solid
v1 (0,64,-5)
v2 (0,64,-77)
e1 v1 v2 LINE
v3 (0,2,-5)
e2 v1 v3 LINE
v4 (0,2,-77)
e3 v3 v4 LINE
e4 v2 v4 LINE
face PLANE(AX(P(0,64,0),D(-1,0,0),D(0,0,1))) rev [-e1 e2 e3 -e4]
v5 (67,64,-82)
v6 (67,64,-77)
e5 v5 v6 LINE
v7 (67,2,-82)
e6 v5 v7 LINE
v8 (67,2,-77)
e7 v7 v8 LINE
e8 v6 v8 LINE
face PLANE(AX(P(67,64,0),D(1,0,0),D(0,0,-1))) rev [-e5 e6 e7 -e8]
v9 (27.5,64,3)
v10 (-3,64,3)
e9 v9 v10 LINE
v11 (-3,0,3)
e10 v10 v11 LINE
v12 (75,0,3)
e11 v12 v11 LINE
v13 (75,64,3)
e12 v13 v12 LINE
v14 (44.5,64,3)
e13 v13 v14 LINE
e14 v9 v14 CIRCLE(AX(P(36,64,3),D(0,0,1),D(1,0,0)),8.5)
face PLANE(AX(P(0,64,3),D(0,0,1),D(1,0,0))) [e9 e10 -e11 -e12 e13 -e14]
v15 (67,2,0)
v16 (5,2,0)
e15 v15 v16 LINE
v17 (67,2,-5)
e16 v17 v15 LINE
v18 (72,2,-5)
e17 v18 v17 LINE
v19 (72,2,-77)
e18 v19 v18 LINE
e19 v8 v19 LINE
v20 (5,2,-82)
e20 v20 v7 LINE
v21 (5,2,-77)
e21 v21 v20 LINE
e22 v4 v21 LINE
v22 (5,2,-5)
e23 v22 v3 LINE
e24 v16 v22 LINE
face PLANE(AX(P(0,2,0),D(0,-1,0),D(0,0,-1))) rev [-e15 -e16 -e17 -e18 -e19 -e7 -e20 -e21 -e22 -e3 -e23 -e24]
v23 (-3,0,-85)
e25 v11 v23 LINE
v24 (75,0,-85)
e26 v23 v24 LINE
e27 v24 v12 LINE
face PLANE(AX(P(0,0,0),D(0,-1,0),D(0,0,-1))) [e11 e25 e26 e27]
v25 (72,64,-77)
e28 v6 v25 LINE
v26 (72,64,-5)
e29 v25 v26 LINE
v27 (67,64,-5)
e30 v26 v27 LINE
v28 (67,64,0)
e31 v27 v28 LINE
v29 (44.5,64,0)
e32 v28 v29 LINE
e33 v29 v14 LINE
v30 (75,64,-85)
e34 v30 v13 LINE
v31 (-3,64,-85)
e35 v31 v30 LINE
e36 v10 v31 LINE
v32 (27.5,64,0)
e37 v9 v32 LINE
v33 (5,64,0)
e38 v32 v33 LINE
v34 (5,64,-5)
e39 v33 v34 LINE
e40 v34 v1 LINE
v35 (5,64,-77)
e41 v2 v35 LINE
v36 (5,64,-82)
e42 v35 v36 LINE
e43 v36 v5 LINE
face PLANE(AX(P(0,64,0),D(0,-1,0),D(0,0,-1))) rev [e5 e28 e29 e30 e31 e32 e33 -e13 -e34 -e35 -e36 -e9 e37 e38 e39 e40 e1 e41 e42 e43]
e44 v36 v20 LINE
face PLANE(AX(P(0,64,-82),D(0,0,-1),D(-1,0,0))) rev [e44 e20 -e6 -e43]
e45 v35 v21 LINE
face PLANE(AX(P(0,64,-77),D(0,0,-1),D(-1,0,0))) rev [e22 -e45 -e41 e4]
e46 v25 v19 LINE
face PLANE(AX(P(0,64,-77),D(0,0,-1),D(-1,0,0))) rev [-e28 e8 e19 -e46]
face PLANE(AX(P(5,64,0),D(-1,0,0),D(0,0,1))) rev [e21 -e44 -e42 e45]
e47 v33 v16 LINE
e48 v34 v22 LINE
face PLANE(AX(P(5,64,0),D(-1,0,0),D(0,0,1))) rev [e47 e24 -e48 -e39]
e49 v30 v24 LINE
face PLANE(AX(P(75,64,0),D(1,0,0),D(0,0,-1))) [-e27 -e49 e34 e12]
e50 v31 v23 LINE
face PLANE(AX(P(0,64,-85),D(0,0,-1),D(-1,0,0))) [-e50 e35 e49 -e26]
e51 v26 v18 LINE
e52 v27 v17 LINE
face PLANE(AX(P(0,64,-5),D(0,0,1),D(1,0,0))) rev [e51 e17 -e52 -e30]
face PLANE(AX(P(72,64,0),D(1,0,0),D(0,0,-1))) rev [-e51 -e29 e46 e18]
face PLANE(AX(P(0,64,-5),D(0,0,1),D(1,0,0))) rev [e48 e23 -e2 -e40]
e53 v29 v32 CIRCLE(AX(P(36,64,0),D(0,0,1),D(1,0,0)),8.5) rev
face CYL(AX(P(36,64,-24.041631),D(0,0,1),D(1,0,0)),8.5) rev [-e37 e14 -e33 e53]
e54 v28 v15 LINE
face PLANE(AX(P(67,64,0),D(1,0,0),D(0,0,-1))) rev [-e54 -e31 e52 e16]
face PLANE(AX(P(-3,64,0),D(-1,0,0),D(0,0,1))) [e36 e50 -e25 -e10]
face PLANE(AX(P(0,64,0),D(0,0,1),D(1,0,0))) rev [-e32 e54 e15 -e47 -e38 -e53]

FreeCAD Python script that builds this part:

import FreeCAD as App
import Part
import Sketcher

V = App.Vector


def add_polygon(sketch, points):
    """Adds a closed chain of lines whose ends are joined by coincident constraints."""
    first, n = sketch.GeometryCount, len(points)
    for a, b in zip(points, points[1:] + points[:1]):
        sketch.addGeometry(Part.LineSegment(App.Vector(*a, 0), App.Vector(*b, 0)), False)
    for i in range(n):
        sketch.addConstraint(Sketcher.Constraint("Coincident", first + i, 2, first + (i + 1) % n, 1))

doc = App.newDocument("Part")
body = doc.addObject("PartDesign::Body", "Body")

sketch1 = body.newObject("Sketcher::SketchObject", "Sketch")
sketch1.AttachmentSupport = (doc.getObject("XZ_Plane"), [""])
sketch1.MapMode = "FlatFace"
add_polygon(sketch1, [(0, -82), (0, 0), (72, 0), (72, -82)])
sketch1.addConstraint(Sketcher.Constraint("Vertical", 0))
sketch1.addConstraint(Sketcher.Constraint("Horizontal", 1))
sketch1.addConstraint(Sketcher.Constraint("Vertical", 2))
sketch1.addConstraint(Sketcher.Constraint("Horizontal", 3))
sketch1.addConstraint(Sketcher.Constraint("Coincident", 0, 2, -1, 1))
sketch1.addConstraint(Sketcher.Constraint("DistanceX", 1, 1, 1, 2, 72.0))
sketch1.addConstraint(Sketcher.Constraint("DistanceY", 0, 1, 0, 2, 82.0))
pad1 = body.newObject("PartDesign::Pad", "Pad")
pad1.Profile = sketch1
pad1.Length = 2
pad1.Reversed = True

sketch2 = body.newObject("Sketcher::SketchObject", "Sketch001")
sketch2.AttachmentSupport = (doc.getObject("XZ_Plane"), [""])
sketch2.MapMode = "FlatFace"
add_polygon(sketch2, [(-3, -85), (-3, 3), (75, 3), (75, -85)])
add_polygon(sketch2, [(5, -77), (5, -82), (67, -82), (67, -77), (72, -77), (72, -5), (67, -5), (67, 0), (5, 0), (5, -5), (0, -5), (0, -77)])
sketch2.addConstraint(Sketcher.Constraint("Vertical", 0))
sketch2.addConstraint(Sketcher.Constraint("Horizontal", 1))
sketch2.addConstraint(Sketcher.Constraint("Vertical", 2))
sketch2.addConstraint(Sketcher.Constraint("Horizontal", 3))
sketch2.addConstraint(Sketcher.Constraint("Vertical", 4))
sketch2.addConstraint(Sketcher.Constraint("Horizontal", 5))
sketch2.addConstraint(Sketcher.Constraint("Vertical", 6))
sketch2.addConstraint(Sketcher.Constraint("Horizontal", 7))
sketch2.addConstraint(Sketcher.Constraint("Vertical", 8))
sketch2.addConstraint(Sketcher.Constraint("Horizontal", 9))
sketch2.addConstraint(Sketcher.Constraint("Vertical", 10))
sketch2.addConstraint(Sketcher.Constraint("Horizontal", 11))
sketch2.addConstraint(Sketcher.Constraint("Vertical", 12))
sketch2.addConstraint(Sketcher.Constraint("Horizontal", 13))
sketch2.addConstraint(Sketcher.Constraint("Vertical", 14))
sketch2.addConstraint(Sketcher.Constraint("Horizontal", 15))
sketch2.addConstraint(Sketcher.Constraint("PointOnObject", 10, 2, -1))
sketch2.addConstraint(Sketcher.Constraint("PointOnObject", 13, 2, -2))
sketch2.addConstraint(Sketcher.Constraint("Horizontal", 9, 2, 12, 2))
sketch2.addConstraint(Sketcher.Constraint("Horizontal", 7, 2, 14, 2))
sketch2.addConstraint(Sketcher.Constraint("Vertical", 6, 2, 9, 2))
sketch2.addConstraint(Sketcher.Constraint("Vertical", 4, 2, 11, 2))
sketch2.addConstraint(Sketcher.Constraint("Equal", 9, 13))
sketch2.addConstraint(Sketcher.Constraint("Equal", 15, 4))
sketch2.addConstraint(Sketcher.Constraint("Equal", 6, 10))
sketch2.addConstraint(Sketcher.Constraint("DistanceX", 1, 1, 1, 2, 78.0))
sketch2.addConstraint(Sketcher.Constraint("DistanceX", 5, 1, 5, 2, 62.0))
sketch2.addConstraint(Sketcher.Constraint("DistanceX", 7, 1, 7, 2, 5.0))
sketch2.addConstraint(Sketcher.Constraint("DistanceY", 0, 1, 0, 2, 88.0))
sketch2.addConstraint(Sketcher.Constraint("DistanceY", 8, 1, 8, 2, 72.0))
sketch2.addConstraint(Sketcher.Constraint("DistanceX", 0, 2, -1, 1, 3.0))
sketch2.addConstraint(Sketcher.Constraint("DistanceY", -1, 1, 0, 2, 3.0))
pad2 = body.newObject("PartDesign::Pad", "Pad001")
pad2.Profile = sketch2
pad2.Length = 64
pad2.Reversed = True

sketch3 = body.newObject("Sketcher::SketchObject", "Sketch002")
sketch3.AttachmentSupport = (doc.getObject("XY_Plane"), [""])
sketch3.MapMode = "FlatFace"
sketch3.AttachmentOffset = App.Placement(V(0, 0, 3), App.Rotation())
sketch3.addGeometry(Part.Circle(V(36, 64, 0), V(0, 0, 1), 8), False)
sketch3.addConstraint(Sketcher.Constraint("Diameter", 0, 17.0))
sketch3.addConstraint(Sketcher.Constraint("DistanceX", -1, 1, 0, 3, 36.0))
sketch3.addConstraint(Sketcher.Constraint("DistanceY", -1, 1, 0, 3, 64.0))
pocket1 = body.newObject("PartDesign::Pocket", "Pocket")
pocket1.Profile = sketch3
pocket1.Length = 3

doc.recompute()
